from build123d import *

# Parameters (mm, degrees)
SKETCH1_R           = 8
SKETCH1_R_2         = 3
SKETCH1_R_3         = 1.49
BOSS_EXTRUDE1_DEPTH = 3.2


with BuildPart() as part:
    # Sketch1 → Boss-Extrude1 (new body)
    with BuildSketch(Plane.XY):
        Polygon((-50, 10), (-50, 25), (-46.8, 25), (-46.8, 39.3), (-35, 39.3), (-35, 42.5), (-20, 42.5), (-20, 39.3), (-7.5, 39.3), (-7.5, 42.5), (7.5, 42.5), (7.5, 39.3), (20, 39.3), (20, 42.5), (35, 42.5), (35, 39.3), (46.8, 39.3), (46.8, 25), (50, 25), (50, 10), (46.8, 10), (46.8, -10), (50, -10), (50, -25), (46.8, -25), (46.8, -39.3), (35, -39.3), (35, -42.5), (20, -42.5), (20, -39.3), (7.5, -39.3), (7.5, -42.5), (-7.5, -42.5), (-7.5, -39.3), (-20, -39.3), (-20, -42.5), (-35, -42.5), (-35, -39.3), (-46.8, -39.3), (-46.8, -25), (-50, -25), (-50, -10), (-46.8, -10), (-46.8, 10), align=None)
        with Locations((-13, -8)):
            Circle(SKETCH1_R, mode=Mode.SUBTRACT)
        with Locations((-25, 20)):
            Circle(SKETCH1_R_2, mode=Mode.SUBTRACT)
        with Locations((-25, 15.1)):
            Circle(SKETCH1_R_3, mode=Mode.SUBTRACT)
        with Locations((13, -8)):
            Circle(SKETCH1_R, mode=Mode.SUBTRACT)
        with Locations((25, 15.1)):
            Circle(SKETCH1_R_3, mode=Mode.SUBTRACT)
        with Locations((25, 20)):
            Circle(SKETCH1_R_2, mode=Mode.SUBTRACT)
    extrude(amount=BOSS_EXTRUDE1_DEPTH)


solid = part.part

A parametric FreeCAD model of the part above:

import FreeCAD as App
import Part
import Sketcher
from FreeCAD import Vector


def add_polygon(sketch, points):
    """Adds a closed chain of lines whose ends are joined by coincident constraints."""
    first, n = sketch.GeometryCount, len(points)
    for a, b in zip(points, points[1:] + points[:1]):
        sketch.addGeometry(Part.LineSegment(App.Vector(*a, 0), App.Vector(*b, 0)), False)
    for i in range(n):
        sketch.addConstraint(Sketcher.Constraint("Coincident", first + i, 2, first + (i + 1) % n, 1))

doc = App.newDocument("Part")
params = doc.addObject("Spreadsheet::Sheet", "Params")
for row, (alias, value) in enumerate([
    ("sketch1_diameter", "16 mm"),
    ("sketch1_diameter2", "6 mm"),
    ("sketch1_diameter3", "2.98 mm"),
    ("sketch1_width", "15 mm"),
    ("sketch1_height", "20 mm"),
    ("pad1_length", "3.2 mm"),
], start=1):
    params.set(f"A{row}", alias)
    params.set(f"B{row}", "=" + value)
    params.setAlias(f"B{row}", alias)

body = doc.addObject("PartDesign::Body", "Body")

# Sketch on XY plane
sketch1 = doc.addObject("Sketcher::SketchObject", "Sketch")
body.addObject(sketch1)
sketch1.AttachmentSupport = (doc.XY_Plane, [""])
sketch1.MapMode = "FlatFace"
add_polygon(sketch1, [(-50, 25), (-50, 10), (-46.8, 10), (-46.8, -10), (-50, -10), (-50, -25), (-46.8, -25), (-46.8, -39.3), (-35, -39.3), (-35, -42.5), (-20, -42.5), (-20, -39.3), (-7.5, -39.3), (-7.5, -42.5), (7.5, -42.5), (7.5, -39.3), (20, -39.3), (20, -42.5), (35, -42.5), (35, -39.3), (46.8, -39.3), (46.8, -25), (50, -25), (50, -10), (46.8, -10), (46.8, 10), (50, 10), (50, 25), (46.8, 25), (46.8, 39.3), (35, 39.3), (35, 42.5), (20, 42.5), (20, 39.3), (7.5, 39.3), (7.5, 42.5), (-7.5, 42.5), (-7.5, 39.3), (-20, 39.3), (-20, 42.5), (-35, 42.5), (-35, 39.3), (-46.8, 39.3), (-46.8, 25)])  # lines 0-43
sketch1.addGeometry(Part.Circle(Vector(13, -8, 0), Vector(0, 0, 1), 8), False)  # 44
sketch1.addGeometry(Part.Circle(Vector(-13, -8, 0), Vector(0, 0, 1), 8), False)  # 45
sketch1.addGeometry(Part.Circle(Vector(25, 15.1, 0), Vector(0, 0, 1), 1.5), False)  # 46
sketch1.addGeometry(Part.Circle(Vector(25, 20, 0), Vector(0, 0, 1), 3), False)  # 47
sketch1.addGeometry(Part.Circle(Vector(-25, 15.1, 0), Vector(0, 0, 1), 1.5), False)  # 48
sketch1.addGeometry(Part.Circle(Vector(-25, 20, 0), Vector(0, 0, 1), 3), False)  # 49
sketch1.addConstraint([
    Sketcher.Constraint("Vertical", 0),
    Sketcher.Constraint("Horizontal", 1),
    Sketcher.Constraint("Vertical", 2),
    Sketcher.Constraint("Horizontal", 3),
    Sketcher.Constraint("Vertical", 4),
    Sketcher.Constraint("Horizontal", 5),
    Sketcher.Constraint("Vertical", 6),
    Sketcher.Constraint("Horizontal", 7),
    Sketcher.Constraint("Vertical", 8),
    Sketcher.Constraint("Horizontal", 9),
    Sketcher.Constraint("Vertical", 10),
    Sketcher.Constraint("Horizontal", 11),
    Sketcher.Constraint("Vertical", 12),
    Sketcher.Constraint("Horizontal", 13),
    Sketcher.Constraint("Vertical", 14),
    Sketcher.Constraint("Horizontal", 15),
    Sketcher.Constraint("Vertical", 16),
    Sketcher.Constraint("Horizontal", 17),
    Sketcher.Constraint("Vertical", 18),
    Sketcher.Constraint("Horizontal", 19),
    Sketcher.Constraint("Vertical", 20),
    Sketcher.Constraint("Horizontal", 21),
    Sketcher.Constraint("Vertical", 22),
    Sketcher.Constraint("Horizontal", 23),
    Sketcher.Constraint("Vertical", 24),
    Sketcher.Constraint("Horizontal", 25),
    Sketcher.Constraint("Vertical", 26),
    Sketcher.Constraint("Horizontal", 27),
    Sketcher.Constraint("Vertical", 28),
    Sketcher.Constraint("Horizontal", 29),
    Sketcher.Constraint("Vertical", 30),
    Sketcher.Constraint("Horizontal", 31),
    Sketcher.Constraint("Vertical", 32),
    Sketcher.Constraint("Horizontal", 33),
    Sketcher.Constraint("Vertical", 34),
    Sketcher.Constraint("Horizontal", 35),
    Sketcher.Constraint("Vertical", 36),
    Sketcher.Constraint("Horizontal", 37),
    Sketcher.Constraint("Vertical", 38),
    Sketcher.Constraint("Horizontal", 39),
    Sketcher.Constraint("Vertical", 40),
    Sketcher.Constraint("Horizontal", 41),
    Sketcher.Constraint("Vertical", 42),
    Sketcher.Constraint("Horizontal", 43),
    Sketcher.Constraint("Equal", 44, 45),
    Sketcher.Constraint("Equal", 46, 48),
    Sketcher.Constraint("Equal", 47, 49),
    Sketcher.Constraint("Symmetric", 0, 2, 22, 2, -1, 1),
    Sketcher.Constraint("Symmetric", 2, 2, 24, 2, -1, 1),
    Sketcher.Constraint("Symmetric", 4, 2, 26, 2, -1, 1),
    Sketcher.Constraint("Symmetric", 6, 2, 28, 2, -1, 1),
    Sketcher.Constraint("Symmetric", 8, 2, 30, 2, -1, 1),
    Sketcher.Constraint("Symmetric", 10, 2, 32, 2, -1, 1),
    Sketcher.Constraint("Symmetric", 12, 2, 34, 2, -1, 1),
    Sketcher.Constraint("Symmetric", 14, 2, 36, 2, -1, 1),
    Sketcher.Constraint("Symmetric", 16, 2, 38, 2, -1, 1),
    Sketcher.Constraint("Symmetric", 18, 2, 40, 2, -1, 1),
    Sketcher.Constraint("Symmetric", 20, 2, 42, 2, -1, 1),
    Sketcher.Constraint("Symmetric", 44, 3, 45, 3, -2),
    Sketcher.Constraint("Symmetric", 46, 3, 48, 3, -2),
    Sketcher.Constraint("Symmetric", 47, 3, 49, 3, -2),
    Sketcher.Constraint("Symmetric", 11, 2, 14, 2, -2),
    Sketcher.Constraint("Symmetric", 9, 2, 16, 2, -2),
    Sketcher.Constraint("Symmetric", 7, 2, 18, 2, -2),
    Sketcher.Constraint("Symmetric", 5, 2, 20, 2, -2),
    Sketcher.Constraint("Symmetric", 3, 2, 22, 2, -2),
    Sketcher.Constraint("Horizontal", 7, 2, 10, 2),
    Sketcher.Constraint("Horizontal", 9, 2, 12, 2),
    Sketcher.Constraint("Vertical", 46, 3, 47, 3),
    Sketcher.Constraint("Vertical", 2, 2, 5, 2),
    Sketcher.Constraint("Equal", 9, 13),
    Sketcher.Constraint("Equal", 39, 0),
    Sketcher.Constraint("Equal", 43, 8),
    Sketcher.Constraint("Diameter", 44, 16.0),
    Sketcher.Constraint("Diameter", 47, 6.0),
    Sketcher.Constraint("Diameter", 46, 2.98),
    Sketcher.Constraint("DistanceX", 9, 1, 9, 2, 15.0),
    Sketcher.Constraint("DistanceY", 2, 2, 2, 1, 20.0),
    Sketcher.Constraint("DistanceX", 1, 1, 1, 2, 3.2),
    Sketcher.Constraint("DistanceX", 7, 1, 7, 2, 11.8),
    Sketcher.Constraint("DistanceX", 11, 1, 11, 2, 12.5),
    Sketcher.Constraint("DistanceY", 6, 2, 6, 1, 14.3),
    Sketcher.Constraint("DistanceX", -1, 1, 44, 3, 13.0),
    Sketcher.Constraint("DistanceY", 44, 3, -1, 1, 8.0),
    Sketcher.Constraint("DistanceX", -1, 1, 46, 3, 25.0),
    Sketcher.Constraint("DistanceY", -1, 1, 47, 3, 20.0),
    Sketcher.Constraint("DistanceY", -1, 1, 46, 3, 15.1),
])
sketch1.setExpression("Constraints[117]", "Params.sketch1_diameter")
sketch1.setExpression("Constraints[118]", "Params.sketch1_diameter2")
sketch1.setExpression("Constraints[119]", "Params.sketch1_diameter3")
sketch1.setExpression("Constraints[120]", "Params.sketch1_width")
sketch1.setExpression("Constraints[121]", "Params.sketch1_height")
pad1 = doc.addObject("PartDesign::Pad", "Pad")
body.addObject(pad1)
pad1.Profile = sketch1
pad1.setExpression("Length", "Params.pad1_length")

doc.recompute()
